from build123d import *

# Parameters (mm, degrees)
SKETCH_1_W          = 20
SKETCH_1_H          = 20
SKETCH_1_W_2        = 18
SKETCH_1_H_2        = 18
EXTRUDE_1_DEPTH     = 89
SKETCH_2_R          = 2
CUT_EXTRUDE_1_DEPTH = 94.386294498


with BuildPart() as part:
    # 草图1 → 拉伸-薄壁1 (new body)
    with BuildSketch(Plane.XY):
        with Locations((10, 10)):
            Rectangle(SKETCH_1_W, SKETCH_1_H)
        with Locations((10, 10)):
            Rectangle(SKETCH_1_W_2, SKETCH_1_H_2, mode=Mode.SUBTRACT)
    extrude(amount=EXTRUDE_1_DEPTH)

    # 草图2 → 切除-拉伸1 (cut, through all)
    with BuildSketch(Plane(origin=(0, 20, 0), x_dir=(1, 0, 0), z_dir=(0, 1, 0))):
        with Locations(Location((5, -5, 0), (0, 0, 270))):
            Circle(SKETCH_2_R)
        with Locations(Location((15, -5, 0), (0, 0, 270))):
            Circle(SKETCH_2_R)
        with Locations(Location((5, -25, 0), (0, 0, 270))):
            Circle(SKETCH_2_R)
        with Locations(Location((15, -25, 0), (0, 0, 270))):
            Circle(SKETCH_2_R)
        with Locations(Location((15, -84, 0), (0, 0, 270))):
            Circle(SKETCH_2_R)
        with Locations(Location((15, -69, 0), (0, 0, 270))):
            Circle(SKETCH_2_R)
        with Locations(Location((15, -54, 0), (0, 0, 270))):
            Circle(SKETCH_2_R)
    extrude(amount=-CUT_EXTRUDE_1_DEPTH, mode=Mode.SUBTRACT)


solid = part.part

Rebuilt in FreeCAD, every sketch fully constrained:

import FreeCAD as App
import Part
import Sketcher
from FreeCAD import Vector
Q = App.Units.Quantity

doc = App.newDocument("Part")
body = doc.addObject("PartDesign::Body", "Body")

sketch1 = body.newObject("Sketcher::SketchObject", "Sketch")
sketch1.AttachmentSupport = (doc.getObject("XY_Plane"), [""])
sketch1.MapMode = "FlatFace"
sketch1.addGeometry([
    Part.LineSegment(Vector(0, 20, 0), Vector(0, 0, 0)),
    Part.LineSegment(Vector(0, 0, 0), Vector(20, 0, 0)),
    Part.LineSegment(Vector(20, 0, 0), Vector(20, 20, 0)),
    Part.LineSegment(Vector(20, 20, 0), Vector(0, 20, 0)),
    Part.LineSegment(Vector(19, 1, 0), Vector(1, 1, 0)),
    Part.LineSegment(Vector(1, 1, 0), Vector(1, 19, 0)),
    Part.LineSegment(Vector(1, 19, 0), Vector(19, 19, 0)),
    Part.LineSegment(Vector(19, 19, 0), Vector(19, 1, 0)),
], False)
sketch1.addConstraint([
    Sketcher.Constraint("Coincident", 0, 2, 1, 1),
    Sketcher.Constraint("Coincident", 1, 2, 2, 1),
    Sketcher.Constraint("Coincident", 2, 2, 3, 1),
    Sketcher.Constraint("Coincident", 3, 2, 0, 1),
    Sketcher.Constraint("Coincident", 4, 2, 5, 1),
    Sketcher.Constraint("Coincident", 5, 2, 6, 1),
    Sketcher.Constraint("Coincident", 6, 2, 7, 1),
    Sketcher.Constraint("Coincident", 7, 2, 4, 1),
    Sketcher.Constraint("Vertical", 0),
    Sketcher.Constraint("Horizontal", 1),
    Sketcher.Constraint("Vertical", 2),
    Sketcher.Constraint("Horizontal", 3),
    Sketcher.Constraint("Horizontal", 4),
    Sketcher.Constraint("Vertical", 5),
    Sketcher.Constraint("Horizontal", 6),
    Sketcher.Constraint("Vertical", 7),
    Sketcher.Constraint("Coincident", 0, 2, -1, 1),
    Sketcher.Constraint("Equal", 3, 0),
    Sketcher.Constraint("Equal", 6, 5),
    Sketcher.Constraint("DistanceX", 1, 1, 1, 2, Q("20 mm")),
    Sketcher.Constraint("DistanceX", 4, 2, 4, 1, Q("18 mm")),
    Sketcher.Constraint("DistanceX", -1, 1, 4, 2, Q("1 mm")),
    Sketcher.Constraint("DistanceY", -1, 1, 4, 2, Q("1 mm")),
])
pad1 = body.newObject("PartDesign::Pad", "Pad")
pad1.Profile = sketch1
pad1.Length = 89

sketch2 = body.newObject("Sketcher::SketchObject", "Sketch001")
sketch2.AttachmentSupport = (doc.getObject("XZ_Plane"), [""])
sketch2.MapMode = "FlatFace"
sketch2.AttachmentOffset = App.Placement(Vector(0, 0, -20), App.Rotation())
sketch2.addGeometry([
    Part.Circle(Vector(5, 5, 0), Vector(0, 0, 1), 2),
    Part.Circle(Vector(15, 5, 0), Vector(0, 0, 1), 2),
    Part.Circle(Vector(5, 25, 0), Vector(0, 0, 1), 2),
    Part.Circle(Vector(15, 25, 0), Vector(0, 0, 1), 2),
    Part.Circle(Vector(15, 84, 0), Vector(0, 0, 1), 2),
    Part.Circle(Vector(15, 69, 0), Vector(0, 0, 1), 2),
    Part.Circle(Vector(15, 54, 0), Vector(0, 0, 1), 2),
], False)
sketch2.addConstraint([
    Sketcher.Constraint("Equal", 0, 1),
    Sketcher.Constraint("Equal", 1, 2),
    Sketcher.Constraint("Equal", 2, 3),
    Sketcher.Constraint("Equal", 3, 4),
    Sketcher.Constraint("Equal", 4, 5),
    Sketcher.Constraint("Equal", 5, 6),
    Sketcher.Constraint("Horizontal", 0, 3, 1, 3),
    Sketcher.Constraint("Horizontal", 2, 3, 3, 3),
    Sketcher.Constraint("Vertical", 0, 3, 2, 3),
    Sketcher.Constraint("Vertical", 1, 3, 3, 3),
    Sketcher.Constraint("Vertical", 3, 3, 4, 3),
    Sketcher.Constraint("Vertical", 4, 3, 5, 3),
    Sketcher.Constraint("Vertical", 5, 3, 6, 3),
    Sketcher.Constraint("Diameter", 0, Q("4 mm")),
    Sketcher.Constraint("DistanceX", -1, 1, 0, 3, Q("5 mm")),
    Sketcher.Constraint("DistanceY", -1, 1, 0, 3, Q("5 mm")),
    Sketcher.Constraint("DistanceX", -1, 1, 1, 3, Q("15 mm")),
    Sketcher.Constraint("DistanceY", -1, 1, 2, 3, Q("25 mm")),
    Sketcher.Constraint("DistanceY", -1, 1, 4, 3, Q("84 mm")),
    Sketcher.Constraint("DistanceY", -1, 1, 5, 3, Q("69 mm")),
    Sketcher.Constraint("DistanceY", -1, 1, 6, 3, Q("54 mm")),
])
pocket1 = body.newObject("PartDesign::Pocket", "Pocket")
pocket1.Profile = sketch2
pocket1.Type = "ThroughAll"
pocket1.Reversed = True

doc.recompute()
